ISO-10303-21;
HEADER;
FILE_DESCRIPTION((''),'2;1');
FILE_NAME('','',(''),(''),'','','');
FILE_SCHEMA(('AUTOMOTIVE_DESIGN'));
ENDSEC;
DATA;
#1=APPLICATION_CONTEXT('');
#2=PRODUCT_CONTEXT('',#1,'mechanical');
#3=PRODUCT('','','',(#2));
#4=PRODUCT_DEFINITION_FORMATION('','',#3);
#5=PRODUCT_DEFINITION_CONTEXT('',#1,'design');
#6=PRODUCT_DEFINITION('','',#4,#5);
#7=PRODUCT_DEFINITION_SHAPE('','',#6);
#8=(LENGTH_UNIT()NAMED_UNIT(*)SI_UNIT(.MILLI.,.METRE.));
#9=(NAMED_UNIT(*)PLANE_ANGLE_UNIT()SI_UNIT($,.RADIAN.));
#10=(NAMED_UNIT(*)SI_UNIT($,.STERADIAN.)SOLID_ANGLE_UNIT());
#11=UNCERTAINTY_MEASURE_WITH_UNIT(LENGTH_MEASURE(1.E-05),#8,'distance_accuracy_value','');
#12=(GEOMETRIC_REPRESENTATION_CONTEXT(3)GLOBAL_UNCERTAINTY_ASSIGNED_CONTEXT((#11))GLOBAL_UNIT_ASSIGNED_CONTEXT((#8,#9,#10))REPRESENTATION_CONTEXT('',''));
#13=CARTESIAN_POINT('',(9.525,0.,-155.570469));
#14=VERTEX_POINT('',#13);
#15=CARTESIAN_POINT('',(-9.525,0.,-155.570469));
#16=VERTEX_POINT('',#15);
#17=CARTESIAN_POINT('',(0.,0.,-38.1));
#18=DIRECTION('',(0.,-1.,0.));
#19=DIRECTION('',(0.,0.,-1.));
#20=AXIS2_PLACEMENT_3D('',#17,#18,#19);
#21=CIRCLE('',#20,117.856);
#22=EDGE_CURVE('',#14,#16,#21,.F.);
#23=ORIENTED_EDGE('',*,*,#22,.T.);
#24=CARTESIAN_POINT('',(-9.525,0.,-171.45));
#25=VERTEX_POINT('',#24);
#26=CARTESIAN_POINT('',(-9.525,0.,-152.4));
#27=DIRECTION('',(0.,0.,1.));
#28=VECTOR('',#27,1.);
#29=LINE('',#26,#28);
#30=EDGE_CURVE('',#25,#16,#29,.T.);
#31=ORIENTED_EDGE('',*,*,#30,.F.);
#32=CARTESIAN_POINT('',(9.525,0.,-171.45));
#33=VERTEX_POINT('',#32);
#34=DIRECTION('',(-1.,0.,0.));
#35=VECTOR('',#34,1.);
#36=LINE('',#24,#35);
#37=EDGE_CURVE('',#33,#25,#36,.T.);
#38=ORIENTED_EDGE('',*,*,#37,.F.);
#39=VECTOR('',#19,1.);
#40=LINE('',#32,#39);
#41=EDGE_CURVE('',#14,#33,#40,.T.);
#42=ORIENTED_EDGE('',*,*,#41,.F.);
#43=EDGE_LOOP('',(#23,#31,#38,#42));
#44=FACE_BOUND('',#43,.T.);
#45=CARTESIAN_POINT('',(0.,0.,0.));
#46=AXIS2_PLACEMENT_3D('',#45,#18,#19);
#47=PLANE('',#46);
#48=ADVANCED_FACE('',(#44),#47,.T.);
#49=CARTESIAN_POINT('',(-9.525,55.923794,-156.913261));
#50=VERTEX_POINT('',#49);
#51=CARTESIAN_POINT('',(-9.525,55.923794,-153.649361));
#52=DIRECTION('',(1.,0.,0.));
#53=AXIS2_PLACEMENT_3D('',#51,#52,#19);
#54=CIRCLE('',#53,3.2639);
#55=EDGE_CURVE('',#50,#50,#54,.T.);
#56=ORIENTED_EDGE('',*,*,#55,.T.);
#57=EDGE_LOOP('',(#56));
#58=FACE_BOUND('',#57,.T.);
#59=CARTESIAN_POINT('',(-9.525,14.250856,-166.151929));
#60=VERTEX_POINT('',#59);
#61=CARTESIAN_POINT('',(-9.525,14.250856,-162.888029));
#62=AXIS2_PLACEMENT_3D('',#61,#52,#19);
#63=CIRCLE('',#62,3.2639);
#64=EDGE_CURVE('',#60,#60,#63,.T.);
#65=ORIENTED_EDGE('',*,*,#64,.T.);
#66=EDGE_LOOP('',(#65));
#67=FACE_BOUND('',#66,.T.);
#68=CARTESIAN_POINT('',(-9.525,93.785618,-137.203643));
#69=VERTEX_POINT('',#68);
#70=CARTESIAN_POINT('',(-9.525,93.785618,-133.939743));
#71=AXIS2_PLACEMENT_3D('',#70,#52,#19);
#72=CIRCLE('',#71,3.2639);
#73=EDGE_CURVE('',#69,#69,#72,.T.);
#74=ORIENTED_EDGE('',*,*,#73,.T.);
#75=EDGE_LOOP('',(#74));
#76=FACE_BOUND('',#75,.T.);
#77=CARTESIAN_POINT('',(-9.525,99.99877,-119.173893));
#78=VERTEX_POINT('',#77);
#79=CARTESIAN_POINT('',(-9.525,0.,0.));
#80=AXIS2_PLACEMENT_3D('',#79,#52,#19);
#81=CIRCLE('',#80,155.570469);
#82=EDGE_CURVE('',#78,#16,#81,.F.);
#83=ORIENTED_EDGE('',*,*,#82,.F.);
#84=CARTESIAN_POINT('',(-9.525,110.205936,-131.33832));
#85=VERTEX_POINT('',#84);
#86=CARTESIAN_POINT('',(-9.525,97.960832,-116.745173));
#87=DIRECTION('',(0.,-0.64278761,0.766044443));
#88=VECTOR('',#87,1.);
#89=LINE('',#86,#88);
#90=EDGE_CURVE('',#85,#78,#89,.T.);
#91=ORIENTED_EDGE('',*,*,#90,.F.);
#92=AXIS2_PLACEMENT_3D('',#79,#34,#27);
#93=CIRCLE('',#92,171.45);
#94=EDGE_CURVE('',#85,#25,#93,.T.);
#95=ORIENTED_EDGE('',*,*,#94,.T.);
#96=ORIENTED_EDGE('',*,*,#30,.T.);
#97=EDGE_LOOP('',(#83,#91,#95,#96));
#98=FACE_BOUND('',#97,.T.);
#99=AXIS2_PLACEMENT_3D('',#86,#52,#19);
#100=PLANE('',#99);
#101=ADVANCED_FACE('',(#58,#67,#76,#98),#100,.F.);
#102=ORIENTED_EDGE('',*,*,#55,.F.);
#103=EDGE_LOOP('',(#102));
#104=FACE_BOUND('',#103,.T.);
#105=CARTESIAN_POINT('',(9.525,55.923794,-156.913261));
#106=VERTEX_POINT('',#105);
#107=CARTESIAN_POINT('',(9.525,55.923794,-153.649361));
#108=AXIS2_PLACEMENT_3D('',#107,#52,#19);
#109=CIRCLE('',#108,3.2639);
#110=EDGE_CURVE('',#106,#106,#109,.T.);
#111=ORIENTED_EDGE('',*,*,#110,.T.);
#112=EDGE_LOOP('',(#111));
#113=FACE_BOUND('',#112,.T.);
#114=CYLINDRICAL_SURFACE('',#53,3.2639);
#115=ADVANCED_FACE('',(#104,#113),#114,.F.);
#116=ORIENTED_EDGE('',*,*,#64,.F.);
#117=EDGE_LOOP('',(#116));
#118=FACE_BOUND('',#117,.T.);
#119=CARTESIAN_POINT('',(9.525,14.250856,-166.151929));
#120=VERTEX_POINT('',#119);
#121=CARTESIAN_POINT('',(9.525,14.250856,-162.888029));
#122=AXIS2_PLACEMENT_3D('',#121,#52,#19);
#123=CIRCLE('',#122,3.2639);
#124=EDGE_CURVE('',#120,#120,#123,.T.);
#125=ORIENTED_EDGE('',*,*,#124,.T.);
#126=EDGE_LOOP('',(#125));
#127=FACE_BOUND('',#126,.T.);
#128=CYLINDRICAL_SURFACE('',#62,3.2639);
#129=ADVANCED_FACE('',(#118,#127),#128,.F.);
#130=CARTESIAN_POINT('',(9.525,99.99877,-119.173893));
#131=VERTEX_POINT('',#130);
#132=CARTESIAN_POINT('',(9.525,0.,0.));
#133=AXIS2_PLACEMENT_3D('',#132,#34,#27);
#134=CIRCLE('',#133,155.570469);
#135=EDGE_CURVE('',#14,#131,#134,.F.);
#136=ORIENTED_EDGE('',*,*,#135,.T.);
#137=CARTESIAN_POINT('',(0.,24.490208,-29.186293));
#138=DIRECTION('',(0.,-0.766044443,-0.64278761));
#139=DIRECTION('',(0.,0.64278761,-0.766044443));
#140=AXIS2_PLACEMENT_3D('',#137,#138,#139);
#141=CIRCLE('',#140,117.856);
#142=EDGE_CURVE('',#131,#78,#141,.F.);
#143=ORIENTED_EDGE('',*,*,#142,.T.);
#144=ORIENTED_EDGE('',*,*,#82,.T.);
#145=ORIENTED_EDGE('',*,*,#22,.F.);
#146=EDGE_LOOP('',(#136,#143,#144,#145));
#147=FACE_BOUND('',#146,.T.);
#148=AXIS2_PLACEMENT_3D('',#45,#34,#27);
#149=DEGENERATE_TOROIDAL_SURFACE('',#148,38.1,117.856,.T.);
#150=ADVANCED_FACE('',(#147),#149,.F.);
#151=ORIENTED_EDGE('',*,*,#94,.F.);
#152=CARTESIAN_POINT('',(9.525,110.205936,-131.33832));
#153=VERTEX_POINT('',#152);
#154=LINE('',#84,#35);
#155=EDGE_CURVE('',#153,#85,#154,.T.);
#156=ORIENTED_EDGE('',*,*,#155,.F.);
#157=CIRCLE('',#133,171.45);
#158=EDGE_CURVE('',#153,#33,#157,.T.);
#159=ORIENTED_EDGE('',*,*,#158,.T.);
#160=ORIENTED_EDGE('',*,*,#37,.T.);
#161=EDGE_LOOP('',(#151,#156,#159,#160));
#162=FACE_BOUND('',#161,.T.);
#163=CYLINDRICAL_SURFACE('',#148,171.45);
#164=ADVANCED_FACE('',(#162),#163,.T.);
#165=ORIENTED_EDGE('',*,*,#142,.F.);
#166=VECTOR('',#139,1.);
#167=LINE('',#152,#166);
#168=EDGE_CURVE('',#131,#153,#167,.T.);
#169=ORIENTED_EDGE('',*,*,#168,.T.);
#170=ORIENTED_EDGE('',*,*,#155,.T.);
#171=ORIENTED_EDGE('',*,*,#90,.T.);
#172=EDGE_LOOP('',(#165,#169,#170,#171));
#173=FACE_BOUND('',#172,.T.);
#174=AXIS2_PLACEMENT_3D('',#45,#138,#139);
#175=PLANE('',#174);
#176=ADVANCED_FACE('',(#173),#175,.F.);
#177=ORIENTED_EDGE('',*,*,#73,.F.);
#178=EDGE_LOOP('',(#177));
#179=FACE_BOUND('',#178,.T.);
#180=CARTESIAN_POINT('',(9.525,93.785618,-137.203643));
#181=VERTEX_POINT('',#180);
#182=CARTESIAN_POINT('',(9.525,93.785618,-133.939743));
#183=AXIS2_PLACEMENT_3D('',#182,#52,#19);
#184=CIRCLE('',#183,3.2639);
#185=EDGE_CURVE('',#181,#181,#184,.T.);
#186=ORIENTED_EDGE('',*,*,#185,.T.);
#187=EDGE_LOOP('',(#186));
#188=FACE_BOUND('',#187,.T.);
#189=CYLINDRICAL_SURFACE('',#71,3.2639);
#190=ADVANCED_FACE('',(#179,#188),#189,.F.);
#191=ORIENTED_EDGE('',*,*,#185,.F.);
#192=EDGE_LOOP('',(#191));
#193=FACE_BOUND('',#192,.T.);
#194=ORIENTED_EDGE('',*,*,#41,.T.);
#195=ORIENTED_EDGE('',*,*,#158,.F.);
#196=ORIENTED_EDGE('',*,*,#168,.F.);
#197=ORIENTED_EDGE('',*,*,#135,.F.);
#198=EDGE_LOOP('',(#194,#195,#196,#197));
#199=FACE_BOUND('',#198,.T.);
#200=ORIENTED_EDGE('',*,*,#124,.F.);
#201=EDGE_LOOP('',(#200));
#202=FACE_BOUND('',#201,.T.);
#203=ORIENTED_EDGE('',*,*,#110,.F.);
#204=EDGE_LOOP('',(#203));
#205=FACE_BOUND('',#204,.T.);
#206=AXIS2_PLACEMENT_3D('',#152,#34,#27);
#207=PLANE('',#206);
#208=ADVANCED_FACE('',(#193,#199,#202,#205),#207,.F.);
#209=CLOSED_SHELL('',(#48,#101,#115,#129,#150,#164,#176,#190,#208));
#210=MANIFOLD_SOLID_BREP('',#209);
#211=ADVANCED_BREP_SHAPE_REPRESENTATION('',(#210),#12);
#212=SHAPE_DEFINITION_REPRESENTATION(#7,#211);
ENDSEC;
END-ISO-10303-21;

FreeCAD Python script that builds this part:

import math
import FreeCAD as App
import Part
import Sketcher
Q = App.Units.Quantity

doc = App.newDocument("Part")
params = doc.addObject("Spreadsheet::Sheet", "Params")
for row, (alias, value) in enumerate([
    ("sketch1_width", "0.75 in"),
    ("revolution_angle", "40 deg"),
    ("sketch2_radius", "4.64 in"),
    ("groove_angle", "360 deg"),
    ("sketch3_diameter", "0.257 in"),
], start=1):
    params.set(f"A{row}", alias)
    params.set(f"B{row}", "=" + value)
    params.setAlias(f"B{row}", alias)

body = doc.addObject("PartDesign::Body", "Body")

# Sketch on XZ plane
sketch1 = body.newObject("Sketcher::SketchObject", "Sketch")
sketch1.AttachmentSupport = (doc.getObject("XZ_Plane"), [""])
sketch1.MapMode = "FlatFace"
sketch1.addGeometry(Part.LineSegment(App.Vector(-10, -152, 0), App.Vector(10, -152, 0)), False)
sketch1.addGeometry(Part.LineSegment(App.Vector(10, -152, 0), App.Vector(10, -171, 0)), False)
sketch1.addGeometry(Part.LineSegment(App.Vector(10, -171, 0), App.Vector(-10, -171, 0)), False)
sketch1.addGeometry(Part.LineSegment(App.Vector(-10, -171, 0), App.Vector(-10, -152, 0)), False)
sketch1.addConstraint(Sketcher.Constraint("Coincident", 0, 2, 1, 1))
sketch1.addConstraint(Sketcher.Constraint("Coincident", 1, 2, 2, 1))
sketch1.addConstraint(Sketcher.Constraint("Coincident", 2, 2, 3, 1))
sketch1.addConstraint(Sketcher.Constraint("Coincident", 3, 2, 0, 1))
sketch1.addConstraint(Sketcher.Constraint("Horizontal", 0))
sketch1.addConstraint(Sketcher.Constraint("Vertical", 1))
sketch1.addConstraint(Sketcher.Constraint("Horizontal", 2))
sketch1.addConstraint(Sketcher.Constraint("Vertical", 3))
sketch1.addConstraint(Sketcher.Constraint("Equal", 2, 1))
sketch1.addConstraint(Sketcher.Constraint("DistanceY", 0, 2, -1, 1, Q("6 in")))
sketch1.addConstraint(Sketcher.Constraint("DistanceX", 0, 1, 0, 2, Q("0.75 in")))
sketch1.addConstraint(Sketcher.Constraint("DistanceX", -1, 1, 0, 2, Q("0.375 in")))
sketch1.setExpression("Constraints[10]", "Params.sketch1_width")
revolution = body.newObject("PartDesign::Revolution", "Revolution")
revolution.Profile = sketch1
revolution.ReferenceAxis = (sketch1, ["H_Axis"])
revolution.setExpression("Angle", "Params.revolution_angle")

# Sketch on XZ plane
sketch2 = body.newObject("Sketcher::SketchObject", "Sketch001")
sketch2.AttachmentSupport = (doc.getObject("XZ_Plane"), [""])
sketch2.MapMode = "FlatFace"
sketch2.addGeometry(Part.LineSegment(App.Vector(-118, -38, 0), App.Vector(118, -38, 0)), False)
sketch2.addGeometry(Part.ArcOfCircle(Part.Circle(App.Vector(0, -38, 0), App.Vector(0, 0, 1), 118), math.radians(180), math.radians(360)), False)
sketch2.addConstraint(Sketcher.Constraint("Coincident", 0, 1, 1, 1))
sketch2.addConstraint(Sketcher.Constraint("Coincident", 1, 2, 0, 2))
sketch2.addConstraint(Sketcher.Constraint("Horizontal", 0))
sketch2.addConstraint(Sketcher.Constraint("PointOnObject", 1, 3, -2))
sketch2.addConstraint(Sketcher.Constraint("Horizontal", 1, 3, 0, 1))
sketch2.addConstraint(Sketcher.Constraint("Radius", 1, Q("4.64 in")))
sketch2.addConstraint(Sketcher.Constraint("DistanceY", 1, 3, -1, 1, Q("1.5 in")))
sketch2.setExpression("Constraints[5]", "Params.sketch2_radius")
groove = body.newObject("PartDesign::Groove", "Groove")
groove.Profile = sketch2
groove.ReferenceAxis = (sketch2, ["H_Axis"])
groove.setExpression("Angle", "Params.groove_angle")

# Sketch on YZ plane
sketch3 = body.newObject("Sketcher::SketchObject", "Sketch002")
sketch3.AttachmentSupport = (doc.getObject("YZ_Plane"), [""])
sketch3.MapMode = "FlatFace"
sketch3.AttachmentOffset = App.Placement(App.Vector(0, 0, 0.375 * 25.4), App.Rotation())
sketch3.addGeometry(Part.Circle(App.Vector(14.3, -162.9, 0), App.Vector(0, 0, 1), 3.3), False)
sketch3.addGeometry(Part.Circle(App.Vector(55.9, -153.6, 0), App.Vector(0, 0, 1), 3.3), False)
sketch3.addGeometry(Part.Circle(App.Vector(93.8, -133.9, 0), App.Vector(0, 0, 1), 3.3), False)
sketch3.addConstraint(Sketcher.Constraint("Equal", 0, 1))
sketch3.addConstraint(Sketcher.Constraint("Equal", 1, 2))
sketch3.addConstraint(Sketcher.Constraint("Diameter", 0, Q("0.257 in")))
sketch3.addConstraint(Sketcher.Constraint("DistanceY", 0, 3, -1, 1, 162.888029))
sketch3.addConstraint(Sketcher.Constraint("DistanceY", 1, 3, -1, 1, 153.649361))
sketch3.addConstraint(Sketcher.Constraint("DistanceX", 0, 3, 2, 3, 79.534762))
sketch3.addConstraint(Sketcher.Constraint("DistanceX", -1, 1, 0, 3, 14.250856))
sketch3.addConstraint(Sketcher.Constraint("DistanceX", -1, 1, 1, 3, 55.923794))
sketch3.addConstraint(Sketcher.Constraint("DistanceY", 2, 3, -1, 1, 133.939743))
sketch3.setExpression("Constraints[2]", "Params.sketch3_diameter")
pocket1 = body.newObject("PartDesign::Pocket", "Pocket")
pocket1.Profile = sketch3
pocket1.Type = "ThroughAll"

doc.recompute()
